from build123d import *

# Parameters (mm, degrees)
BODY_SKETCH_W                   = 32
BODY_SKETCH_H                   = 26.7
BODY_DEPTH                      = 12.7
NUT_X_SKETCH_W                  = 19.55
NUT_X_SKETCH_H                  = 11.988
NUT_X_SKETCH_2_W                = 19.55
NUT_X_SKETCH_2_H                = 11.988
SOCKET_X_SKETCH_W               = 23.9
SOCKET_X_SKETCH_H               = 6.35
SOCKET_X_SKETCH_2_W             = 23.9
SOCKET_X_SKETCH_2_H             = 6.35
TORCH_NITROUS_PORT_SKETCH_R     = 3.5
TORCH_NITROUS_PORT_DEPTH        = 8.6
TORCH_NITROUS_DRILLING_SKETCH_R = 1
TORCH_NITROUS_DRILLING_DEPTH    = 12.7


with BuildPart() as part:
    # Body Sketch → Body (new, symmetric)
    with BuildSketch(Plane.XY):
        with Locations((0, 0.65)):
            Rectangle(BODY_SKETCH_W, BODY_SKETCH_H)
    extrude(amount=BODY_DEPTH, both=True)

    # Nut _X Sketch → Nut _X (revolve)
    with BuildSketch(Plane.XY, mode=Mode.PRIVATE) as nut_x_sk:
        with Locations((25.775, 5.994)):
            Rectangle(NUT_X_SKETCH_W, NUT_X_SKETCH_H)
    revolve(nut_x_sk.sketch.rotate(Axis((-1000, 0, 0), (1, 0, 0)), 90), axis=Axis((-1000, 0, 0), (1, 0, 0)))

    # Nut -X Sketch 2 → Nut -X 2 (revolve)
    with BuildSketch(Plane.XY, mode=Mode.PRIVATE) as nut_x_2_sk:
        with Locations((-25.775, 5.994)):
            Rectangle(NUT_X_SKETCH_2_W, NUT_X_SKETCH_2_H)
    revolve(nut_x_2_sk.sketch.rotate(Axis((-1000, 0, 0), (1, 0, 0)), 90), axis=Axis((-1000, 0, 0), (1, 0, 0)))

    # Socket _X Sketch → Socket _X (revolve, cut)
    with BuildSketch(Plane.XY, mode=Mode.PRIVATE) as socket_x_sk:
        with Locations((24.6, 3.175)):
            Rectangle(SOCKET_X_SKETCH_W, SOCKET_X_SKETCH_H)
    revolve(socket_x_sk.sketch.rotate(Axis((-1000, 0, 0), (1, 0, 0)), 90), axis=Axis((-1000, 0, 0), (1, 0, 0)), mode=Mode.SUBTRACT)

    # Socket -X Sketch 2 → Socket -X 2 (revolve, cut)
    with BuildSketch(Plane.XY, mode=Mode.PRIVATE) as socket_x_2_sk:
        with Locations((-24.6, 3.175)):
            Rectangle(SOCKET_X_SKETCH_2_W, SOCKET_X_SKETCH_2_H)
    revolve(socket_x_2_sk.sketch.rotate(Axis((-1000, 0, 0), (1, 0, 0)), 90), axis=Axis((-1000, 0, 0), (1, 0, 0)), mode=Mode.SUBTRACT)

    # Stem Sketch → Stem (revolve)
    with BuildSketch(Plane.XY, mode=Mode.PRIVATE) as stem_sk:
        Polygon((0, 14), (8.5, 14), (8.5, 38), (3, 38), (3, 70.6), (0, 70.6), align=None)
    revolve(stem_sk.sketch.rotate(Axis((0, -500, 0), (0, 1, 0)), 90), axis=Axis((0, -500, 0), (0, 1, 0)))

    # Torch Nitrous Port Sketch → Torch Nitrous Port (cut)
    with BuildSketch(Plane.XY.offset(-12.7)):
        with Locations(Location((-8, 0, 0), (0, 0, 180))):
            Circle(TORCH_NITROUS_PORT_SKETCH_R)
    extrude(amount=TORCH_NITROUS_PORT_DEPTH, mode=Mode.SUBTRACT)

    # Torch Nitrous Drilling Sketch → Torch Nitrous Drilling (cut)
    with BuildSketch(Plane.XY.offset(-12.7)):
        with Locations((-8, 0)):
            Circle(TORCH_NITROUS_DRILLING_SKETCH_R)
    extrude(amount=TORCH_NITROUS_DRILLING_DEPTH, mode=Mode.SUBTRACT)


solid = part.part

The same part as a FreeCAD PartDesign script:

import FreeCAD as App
import Part
import Sketcher
Q = App.Units.Quantity

doc = App.newDocument("Part")
body = doc.addObject("PartDesign::Body", "Body")

# Sketch on XY plane
sketch1 = body.newObject("Sketcher::SketchObject", "Sketch")
sketch1.AttachmentSupport = (doc.getObject("XY_Plane"), [""])
sketch1.MapMode = "FlatFace"
sketch1.addGeometry(Part.LineSegment(App.Vector(-16, 14, 0), App.Vector(-16, -13, 0)), False)
sketch1.addGeometry(Part.LineSegment(App.Vector(-16, -13, 0), App.Vector(16, -13, 0)), False)
sketch1.addGeometry(Part.LineSegment(App.Vector(16, -13, 0), App.Vector(16, 14, 0)), False)
sketch1.addGeometry(Part.LineSegment(App.Vector(16, 14, 0), App.Vector(-16, 14, 0)), False)
sketch1.addConstraint(Sketcher.Constraint("Coincident", 0, 2, 1, 1))
sketch1.addConstraint(Sketcher.Constraint("Coincident", 1, 2, 2, 1))
sketch1.addConstraint(Sketcher.Constraint("Coincident", 2, 2, 3, 1))
sketch1.addConstraint(Sketcher.Constraint("Coincident", 3, 2, 0, 1))
sketch1.addConstraint(Sketcher.Constraint("Vertical", 0))
sketch1.addConstraint(Sketcher.Constraint("Horizontal", 1))
sketch1.addConstraint(Sketcher.Constraint("Vertical", 2))
sketch1.addConstraint(Sketcher.Constraint("Horizontal", 3))
sketch1.addConstraint(Sketcher.Constraint("DistanceX", 1, 1, 1, 2, Q("32 mm")))
sketch1.addConstraint(Sketcher.Constraint("DistanceY", 0, 2, 0, 1, Q("26.7 mm")))
sketch1.addConstraint(Sketcher.Constraint("DistanceX", 0, 2, -1, 1, Q("16 mm")))
sketch1.addConstraint(Sketcher.Constraint("DistanceY", -1, 1, 2, 2, Q("14 mm")))
pad1 = body.newObject("PartDesign::Pad", "Pad")
pad1.Profile = sketch1
pad1.Length = 25.4
pad1.Midplane = True

# Sketch on XY plane
sketch2 = body.newObject("Sketcher::SketchObject", "Sketch001")
sketch2.AttachmentSupport = (doc.getObject("XY_Plane"), [""])
sketch2.MapMode = "FlatFace"
sketch2.addGeometry(Part.LineSegment(App.Vector(16, 12, 0), App.Vector(16, 0, 0)), False)
sketch2.addGeometry(Part.LineSegment(App.Vector(16, 0, 0), App.Vector(36, 0, 0)), False)
sketch2.addGeometry(Part.LineSegment(App.Vector(36, 0, 0), App.Vector(36, 12, 0)), False)
sketch2.addGeometry(Part.LineSegment(App.Vector(36, 12, 0), App.Vector(16, 12, 0)), False)
sketch2.addConstraint(Sketcher.Constraint("Coincident", 0, 2, 1, 1))
sketch2.addConstraint(Sketcher.Constraint("Coincident", 1, 2, 2, 1))
sketch2.addConstraint(Sketcher.Constraint("Coincident", 2, 2, 3, 1))
sketch2.addConstraint(Sketcher.Constraint("Coincident", 3, 2, 0, 1))
sketch2.addConstraint(Sketcher.Constraint("Vertical", 0))
sketch2.addConstraint(Sketcher.Constraint("Horizontal", 1))
sketch2.addConstraint(Sketcher.Constraint("Vertical", 2))
sketch2.addConstraint(Sketcher.Constraint("Horizontal", 3))
sketch2.addConstraint(Sketcher.Constraint("PointOnObject", 0, 2, -1))
sketch2.addConstraint(Sketcher.Constraint("DistanceX", -1, 1, 0, 2, Q("16 mm")))
sketch2.addConstraint(Sketcher.Constraint("DistanceX", 1, 1, 1, 2, Q("19.55 mm")))
sketch2.addConstraint(Sketcher.Constraint("DistanceY", 0, 2, 0, 1, Q("11.988 mm")))
revolution = body.newObject("PartDesign::Revolution", "Revolution")
revolution.Profile = sketch2
revolution.ReferenceAxis = (sketch2, ["H_Axis"])
revolution.Angle = 360

# Sketch on XY plane
sketch3 = body.newObject("Sketcher::SketchObject", "Sketch002")
sketch3.AttachmentSupport = (doc.getObject("XY_Plane"), [""])
sketch3.MapMode = "FlatFace"
sketch3.addGeometry(Part.LineSegment(App.Vector(-36, 12, 0), App.Vector(-36, 0, 0)), False)
sketch3.addGeometry(Part.LineSegment(App.Vector(-36, 0, 0), App.Vector(-16, 0, 0)), False)
sketch3.addGeometry(Part.LineSegment(App.Vector(-16, 0, 0), App.Vector(-16, 12, 0)), False)
sketch3.addGeometry(Part.LineSegment(App.Vector(-16, 12, 0), App.Vector(-36, 12, 0)), False)
sketch3.addConstraint(Sketcher.Constraint("Coincident", 0, 2, 1, 1))
sketch3.addConstraint(Sketcher.Constraint("Coincident", 1, 2, 2, 1))
sketch3.addConstraint(Sketcher.Constraint("Coincident", 2, 2, 3, 1))
sketch3.addConstraint(Sketcher.Constraint("Coincident", 3, 2, 0, 1))
sketch3.addConstraint(Sketcher.Constraint("Vertical", 0))
sketch3.addConstraint(Sketcher.Constraint("Horizontal", 1))
sketch3.addConstraint(Sketcher.Constraint("Vertical", 2))
sketch3.addConstraint(Sketcher.Constraint("Horizontal", 3))
sketch3.addConstraint(Sketcher.Constraint("PointOnObject", 0, 2, -1))
sketch3.addConstraint(Sketcher.Constraint("DistanceX", 1, 2, -1, 1, Q("16 mm")))
sketch3.addConstraint(Sketcher.Constraint("DistanceX", 1, 1, 1, 2, Q("19.55 mm")))
sketch3.addConstraint(Sketcher.Constraint("DistanceY", 0, 2, 0, 1, Q("11.988 mm")))
revolution2 = body.newObject("PartDesign::Revolution", "Revolution001")
revolution2.Profile = sketch3
revolution2.ReferenceAxis = (sketch3, ["H_Axis"])
revolution2.Angle = 360

# Sketch on XY plane
sketch4 = body.newObject("Sketcher::SketchObject", "Sketch003")
sketch4.AttachmentSupport = (doc.getObject("XY_Plane"), [""])
sketch4.MapMode = "FlatFace"
sketch4.addGeometry(Part.LineSegment(App.Vector(13, 6, 0), App.Vector(13, 0, 0)), False)
sketch4.addGeometry(Part.LineSegment(App.Vector(13, 0, 0), App.Vector(37, 0, 0)), False)
sketch4.addGeometry(Part.LineSegment(App.Vector(37, 0, 0), App.Vector(37, 6, 0)), False)
sketch4.addGeometry(Part.LineSegment(App.Vector(37, 6, 0), App.Vector(13, 6, 0)), False)
sketch4.addConstraint(Sketcher.Constraint("Coincident", 0, 2, 1, 1))
sketch4.addConstraint(Sketcher.Constraint("Coincident", 1, 2, 2, 1))
sketch4.addConstraint(Sketcher.Constraint("Coincident", 2, 2, 3, 1))
sketch4.addConstraint(Sketcher.Constraint("Coincident", 3, 2, 0, 1))
sketch4.addConstraint(Sketcher.Constraint("Vertical", 0))
sketch4.addConstraint(Sketcher.Constraint("Horizontal", 1))
sketch4.addConstraint(Sketcher.Constraint("Vertical", 2))
sketch4.addConstraint(Sketcher.Constraint("Horizontal", 3))
sketch4.addConstraint(Sketcher.Constraint("PointOnObject", 0, 2, -1))
sketch4.addConstraint(Sketcher.Constraint("DistanceX", 1, 1, 1, 2, Q("23.9 mm")))
sketch4.addConstraint(Sketcher.Constraint("DistanceY", 0, 2, 0, 1, Q("6.35 mm")))
sketch4.addConstraint(Sketcher.Constraint("DistanceX", -1, 1, 0, 2, Q("12.65 mm")))
groove = body.newObject("PartDesign::Groove", "Groove")
groove.Profile = sketch4
groove.ReferenceAxis = (sketch4, ["H_Axis"])
groove.Angle = 360

# Sketch on XY plane
sketch5 = body.newObject("Sketcher::SketchObject", "Sketch004")
sketch5.AttachmentSupport = (doc.getObject("XY_Plane"), [""])
sketch5.MapMode = "FlatFace"
sketch5.addGeometry(Part.LineSegment(App.Vector(-37, 6, 0), App.Vector(-37, 0, 0)), False)
sketch5.addGeometry(Part.LineSegment(App.Vector(-37, 0, 0), App.Vector(-13, 0, 0)), False)
sketch5.addGeometry(Part.LineSegment(App.Vector(-13, 0, 0), App.Vector(-13, 6, 0)), False)
sketch5.addGeometry(Part.LineSegment(App.Vector(-13, 6, 0), App.Vector(-37, 6, 0)), False)
sketch5.addConstraint(Sketcher.Constraint("Coincident", 0, 2, 1, 1))
sketch5.addConstraint(Sketcher.Constraint("Coincident", 1, 2, 2, 1))
sketch5.addConstraint(Sketcher.Constraint("Coincident", 2, 2, 3, 1))
sketch5.addConstraint(Sketcher.Constraint("Coincident", 3, 2, 0, 1))
sketch5.addConstraint(Sketcher.Constraint("Vertical", 0))
sketch5.addConstraint(Sketcher.Constraint("Horizontal", 1))
sketch5.addConstraint(Sketcher.Constraint("Vertical", 2))
sketch5.addConstraint(Sketcher.Constraint("Horizontal", 3))
sketch5.addConstraint(Sketcher.Constraint("PointOnObject", 0, 2, -1))
sketch5.addConstraint(Sketcher.Constraint("DistanceX", 1, 1, 1, 2, Q("23.9 mm")))
sketch5.addConstraint(Sketcher.Constraint("DistanceY", 0, 2, 0, 1, Q("6.35 mm")))
sketch5.addConstraint(Sketcher.Constraint("DistanceX", 0, 2, -1, 1, Q("36.55 mm")))
groove2 = body.newObject("PartDesign::Groove", "Groove001")
groove2.Profile = sketch5
groove2.ReferenceAxis = (sketch5, ["H_Axis"])
groove2.Angle = 360

# Sketch on XY plane
sketch6 = body.newObject("Sketcher::SketchObject", "Sketch005")
sketch6.AttachmentSupport = (doc.getObject("XY_Plane"), [""])
sketch6.MapMode = "FlatFace"
sketch6.addGeometry(Part.LineSegment(App.Vector(0, 14, 0), App.Vector(8.5, 14, 0)), False)
sketch6.addGeometry(Part.LineSegment(App.Vector(8.5, 14, 0), App.Vector(8.5, 38, 0)), False)
sketch6.addGeometry(Part.LineSegment(App.Vector(8.5, 38, 0), App.Vector(3, 38, 0)), False)
sketch6.addGeometry(Part.LineSegment(App.Vector(3, 38, 0), App.Vector(3, 70.6, 0)), False)
sketch6.addGeometry(Part.LineSegment(App.Vector(3, 70.6, 0), App.Vector(0, 70.6, 0)), False)
sketch6.addGeometry(Part.LineSegment(App.Vector(0, 70.6, 0), App.Vector(0, 14, 0)), False)
sketch6.addConstraint(Sketcher.Constraint("Coincident", 0, 2, 1, 1))
sketch6.addConstraint(Sketcher.Constraint("Coincident", 1, 2, 2, 1))
sketch6.addConstraint(Sketcher.Constraint("Coincident", 2, 2, 3, 1))
sketch6.addConstraint(Sketcher.Constraint("Coincident", 3, 2, 4, 1))
sketch6.addConstraint(Sketcher.Constraint("Coincident", 4, 2, 5, 1))
sketch6.addConstraint(Sketcher.Constraint("Coincident", 5, 2, 0, 1))
sketch6.addConstraint(Sketcher.Constraint("Horizontal", 0))
sketch6.addConstraint(Sketcher.Constraint("Vertical", 1))
sketch6.addConstraint(Sketcher.Constraint("Horizontal", 2))
sketch6.addConstraint(Sketcher.Constraint("Vertical", 3))
sketch6.addConstraint(Sketcher.Constraint("Horizontal", 4))
sketch6.addConstraint(Sketcher.Constraint("Vertical", 5))
sketch6.addConstraint(Sketcher.Constraint("PointOnObject", 4, 2, -2))
sketch6.addConstraint(Sketcher.Constraint("DistanceX", 4, 2, 4, 1, Q("3 mm")))
sketch6.addConstraint(Sketcher.Constraint("DistanceY", 1, 1, 1, 2, Q("24 mm")))
sketch6.addConstraint(Sketcher.Constraint("DistanceX", 0, 1, 0, 2, Q("8.5 mm")))
sketch6.addConstraint(Sketcher.Constraint("DistanceY", 3, 1, 3, 2, Q("32.6 mm")))
sketch6.addConstraint(Sketcher.Constraint("DistanceY", -1, 1, 0, 2, Q("14 mm")))
revolution3 = body.newObject("PartDesign::Revolution", "Revolution002")
revolution3.Profile = sketch6
revolution3.ReferenceAxis = (sketch6, ["V_Axis"])
revolution3.Angle = 360

# Sketch on XY plane
sketch7 = body.newObject("Sketcher::SketchObject", "Sketch006")
sketch7.AttachmentSupport = (doc.getObject("XY_Plane"), [""])
sketch7.MapMode = "FlatFace"
sketch7.AttachmentOffset = App.Placement(App.Vector(0, 0, -12.7), App.Rotation())
sketch7.addGeometry(Part.Circle(App.Vector(-8, 0, 0), App.Vector(0, 0, 1), 3.5), False)
sketch7.addConstraint(Sketcher.Constraint("PointOnObject", 0, 3, -1))
sketch7.addConstraint(Sketcher.Constraint("Diameter", 0, Q("7 mm")))
sketch7.addConstraint(Sketcher.Constraint("DistanceX", 0, 3, -1, 1, Q("8 mm")))
pocket1 = body.newObject("PartDesign::Pocket", "Pocket")
pocket1.Profile = sketch7
pocket1.Length = 8.6
pocket1.Reversed = True

# Sketch on XY plane
sketch8 = body.newObject("Sketcher::SketchObject", "Sketch007")
sketch8.AttachmentSupport = (doc.getObject("XY_Plane"), [""])
sketch8.MapMode = "FlatFace"
sketch8.AttachmentOffset = App.Placement(App.Vector(0, 0, -12.7), App.Rotation())
sketch8.addGeometry(Part.Circle(App.Vector(-8, 0, 0), App.Vector(0, 0, 1), 1), False)
sketch8.addConstraint(Sketcher.Constraint("PointOnObject", 0, 3, -1))
sketch8.addConstraint(Sketcher.Constraint("Diameter", 0, Q("2 mm")))
sketch8.addConstraint(Sketcher.Constraint("DistanceX", 0, 3, -1, 1, Q("8 mm")))
pocket2 = body.newObject("PartDesign::Pocket", "Pocket001")
pocket2.Profile = sketch8
pocket2.Length = 12.7
pocket2.Reversed = True

doc.recompute()
